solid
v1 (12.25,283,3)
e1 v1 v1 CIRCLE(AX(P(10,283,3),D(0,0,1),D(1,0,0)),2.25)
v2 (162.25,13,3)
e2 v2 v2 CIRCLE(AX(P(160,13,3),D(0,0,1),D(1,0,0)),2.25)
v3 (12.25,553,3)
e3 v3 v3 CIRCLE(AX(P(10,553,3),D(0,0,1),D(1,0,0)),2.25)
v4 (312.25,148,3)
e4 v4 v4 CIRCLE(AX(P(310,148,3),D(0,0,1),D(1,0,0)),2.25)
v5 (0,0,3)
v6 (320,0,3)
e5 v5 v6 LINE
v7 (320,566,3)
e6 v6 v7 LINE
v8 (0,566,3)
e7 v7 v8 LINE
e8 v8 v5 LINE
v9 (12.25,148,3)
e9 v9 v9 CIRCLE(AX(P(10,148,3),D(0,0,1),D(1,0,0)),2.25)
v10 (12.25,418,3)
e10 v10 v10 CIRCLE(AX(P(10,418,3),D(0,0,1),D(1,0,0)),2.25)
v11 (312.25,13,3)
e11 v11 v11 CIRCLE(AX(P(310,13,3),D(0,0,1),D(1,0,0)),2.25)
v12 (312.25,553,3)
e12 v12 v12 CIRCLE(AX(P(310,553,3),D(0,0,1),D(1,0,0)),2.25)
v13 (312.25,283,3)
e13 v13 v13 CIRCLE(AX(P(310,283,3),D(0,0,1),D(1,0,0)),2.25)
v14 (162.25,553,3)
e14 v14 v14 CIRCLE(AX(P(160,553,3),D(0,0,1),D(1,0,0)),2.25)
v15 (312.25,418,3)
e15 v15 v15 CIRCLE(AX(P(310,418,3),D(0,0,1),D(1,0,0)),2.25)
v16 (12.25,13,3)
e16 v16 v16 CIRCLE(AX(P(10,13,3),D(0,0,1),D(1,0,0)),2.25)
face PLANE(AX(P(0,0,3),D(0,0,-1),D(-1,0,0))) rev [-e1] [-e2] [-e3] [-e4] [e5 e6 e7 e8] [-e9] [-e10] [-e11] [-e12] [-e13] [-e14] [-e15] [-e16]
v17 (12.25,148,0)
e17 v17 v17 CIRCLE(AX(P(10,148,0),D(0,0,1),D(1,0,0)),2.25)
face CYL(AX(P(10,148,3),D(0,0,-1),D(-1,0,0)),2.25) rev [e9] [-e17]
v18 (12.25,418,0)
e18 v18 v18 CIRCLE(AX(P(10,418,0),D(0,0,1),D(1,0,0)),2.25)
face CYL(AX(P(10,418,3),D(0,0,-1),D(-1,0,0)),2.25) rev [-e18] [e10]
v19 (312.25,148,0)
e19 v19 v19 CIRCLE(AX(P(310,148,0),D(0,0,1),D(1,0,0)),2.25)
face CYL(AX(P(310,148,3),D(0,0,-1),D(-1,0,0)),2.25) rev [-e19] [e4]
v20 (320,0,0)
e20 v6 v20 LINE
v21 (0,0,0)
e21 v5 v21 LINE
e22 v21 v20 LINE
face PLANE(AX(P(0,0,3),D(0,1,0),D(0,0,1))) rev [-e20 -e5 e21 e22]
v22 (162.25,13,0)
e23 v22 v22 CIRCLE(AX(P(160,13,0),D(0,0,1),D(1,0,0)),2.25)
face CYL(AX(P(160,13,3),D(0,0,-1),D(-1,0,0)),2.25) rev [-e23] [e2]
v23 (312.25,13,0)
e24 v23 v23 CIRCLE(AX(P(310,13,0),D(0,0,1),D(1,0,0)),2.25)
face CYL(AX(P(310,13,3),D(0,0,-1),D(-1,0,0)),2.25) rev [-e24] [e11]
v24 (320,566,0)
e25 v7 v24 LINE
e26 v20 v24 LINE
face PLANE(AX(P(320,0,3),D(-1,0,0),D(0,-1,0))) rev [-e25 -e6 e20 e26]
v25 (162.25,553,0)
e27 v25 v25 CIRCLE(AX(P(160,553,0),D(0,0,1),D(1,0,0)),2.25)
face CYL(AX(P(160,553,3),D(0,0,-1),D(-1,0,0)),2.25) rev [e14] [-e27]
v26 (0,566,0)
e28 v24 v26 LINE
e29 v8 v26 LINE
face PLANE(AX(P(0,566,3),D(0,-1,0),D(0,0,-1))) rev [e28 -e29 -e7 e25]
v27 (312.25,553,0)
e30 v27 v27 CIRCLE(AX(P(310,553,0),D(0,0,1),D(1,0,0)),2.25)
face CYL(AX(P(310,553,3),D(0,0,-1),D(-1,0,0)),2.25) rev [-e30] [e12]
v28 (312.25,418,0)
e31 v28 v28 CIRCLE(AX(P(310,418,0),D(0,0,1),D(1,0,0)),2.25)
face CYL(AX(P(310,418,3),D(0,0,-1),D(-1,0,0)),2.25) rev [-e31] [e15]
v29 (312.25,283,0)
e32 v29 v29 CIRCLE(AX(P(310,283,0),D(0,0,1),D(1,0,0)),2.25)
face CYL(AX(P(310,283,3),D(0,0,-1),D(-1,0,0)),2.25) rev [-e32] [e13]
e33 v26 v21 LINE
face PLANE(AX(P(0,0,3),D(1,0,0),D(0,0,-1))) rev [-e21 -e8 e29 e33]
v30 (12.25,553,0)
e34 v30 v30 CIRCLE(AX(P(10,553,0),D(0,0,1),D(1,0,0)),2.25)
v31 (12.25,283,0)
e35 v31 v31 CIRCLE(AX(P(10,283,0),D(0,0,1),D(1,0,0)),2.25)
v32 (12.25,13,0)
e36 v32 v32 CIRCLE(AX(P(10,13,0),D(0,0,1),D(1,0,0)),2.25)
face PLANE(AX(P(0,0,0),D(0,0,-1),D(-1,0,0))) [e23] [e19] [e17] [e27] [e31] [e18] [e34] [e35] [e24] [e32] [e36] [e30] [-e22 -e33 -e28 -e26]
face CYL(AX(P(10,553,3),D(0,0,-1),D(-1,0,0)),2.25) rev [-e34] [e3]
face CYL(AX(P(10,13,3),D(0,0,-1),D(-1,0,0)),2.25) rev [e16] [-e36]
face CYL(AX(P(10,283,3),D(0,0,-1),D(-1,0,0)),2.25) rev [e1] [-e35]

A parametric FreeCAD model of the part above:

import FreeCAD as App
import Part
import Sketcher
from FreeCAD import Vector

doc = App.newDocument("Part")
body = doc.addObject("PartDesign::Body", "Body")

# Sketch on XY plane
sketch1 = body.newObject("Sketcher::SketchObject", "Sketch")
sketch1.AttachmentSupport = (doc.getObject("XY_Plane"), [""])
sketch1.MapMode = "FlatFace"
sketch1.addGeometry([
    Part.LineSegment(Vector(0, 566, 0), Vector(0, 0, 0)),  # 0
    Part.LineSegment(Vector(0, 0, 0), Vector(320, 0, 0)),  # 1
    Part.LineSegment(Vector(320, 0, 0), Vector(320, 566, 0)),  # 2
    Part.LineSegment(Vector(320, 566, 0), Vector(0, 566, 0)),  # 3
    Part.Circle(Vector(10, 13, 0), Vector(0, 0, 1), 2.2),  # 4
    Part.Circle(Vector(10, 148, 0), Vector(0, 0, 1), 2.2),  # 5
    Part.Circle(Vector(160, 13, 0), Vector(0, 0, 1), 2.2),  # 6
    Part.Circle(Vector(310, 13, 0), Vector(0, 0, 1), 2.2),  # 7
    Part.Circle(Vector(310, 148, 0), Vector(0, 0, 1), 2.2),  # 8
    Part.Circle(Vector(10, 283, 0), Vector(0, 0, 1), 2.2),  # 9
    Part.Circle(Vector(10, 418, 0), Vector(0, 0, 1), 2.2),  # 10
    Part.Circle(Vector(10, 553, 0), Vector(0, 0, 1), 2.2),  # 11
    Part.Circle(Vector(310, 283, 0), Vector(0, 0, 1), 2.2),  # 12
    Part.Circle(Vector(310, 418, 0), Vector(0, 0, 1), 2.2),  # 13
    Part.Circle(Vector(160, 553, 0), Vector(0, 0, 1), 2.2),  # 14
    Part.Circle(Vector(310, 553, 0), Vector(0, 0, 1), 2.2),  # 15
], False)
sketch1.addConstraint([
    Sketcher.Constraint("Coincident", 0, 2, 1, 1),
    Sketcher.Constraint("Coincident", 1, 2, 2, 1),
    Sketcher.Constraint("Coincident", 2, 2, 3, 1),
    Sketcher.Constraint("Coincident", 3, 2, 0, 1),
    Sketcher.Constraint("Vertical", 0),
    Sketcher.Constraint("Horizontal", 1),
    Sketcher.Constraint("Vertical", 2),
    Sketcher.Constraint("Horizontal", 3),
    Sketcher.Constraint("Coincident", 0, 2, -1, 1),
    Sketcher.Constraint("Equal", 4, 5),
    Sketcher.Constraint("Equal", 5, 6),
    Sketcher.Constraint("Equal", 6, 7),
    Sketcher.Constraint("Equal", 7, 8),
    Sketcher.Constraint("Equal", 8, 9),
    Sketcher.Constraint("Equal", 9, 10),
    Sketcher.Constraint("Equal", 10, 11),
    Sketcher.Constraint("Equal", 11, 12),
    Sketcher.Constraint("Equal", 12, 13),
    Sketcher.Constraint("Equal", 13, 14),
    Sketcher.Constraint("Equal", 14, 15),
    Sketcher.Constraint("Horizontal", 4, 3, 6, 3),
    Sketcher.Constraint("Horizontal", 6, 3, 7, 3),
    Sketcher.Constraint("Horizontal", 5, 3, 8, 3),
    Sketcher.Constraint("Horizontal", 9, 3, 12, 3),
    Sketcher.Constraint("Horizontal", 10, 3, 13, 3),
    Sketcher.Constraint("Horizontal", 11, 3, 14, 3),
    Sketcher.Constraint("Horizontal", 14, 3, 15, 3),
    Sketcher.Constraint("Vertical", 4, 3, 5, 3),
    Sketcher.Constraint("Vertical", 7, 3, 8, 3),
    Sketcher.Constraint("Vertical", 5, 3, 9, 3),
    Sketcher.Constraint("Vertical", 9, 3, 10, 3),
    Sketcher.Constraint("Vertical", 10, 3, 11, 3),
    Sketcher.Constraint("Vertical", 8, 3, 12, 3),
    Sketcher.Constraint("Vertical", 12, 3, 13, 3),
    Sketcher.Constraint("Vertical", 6, 3, 14, 3),
    Sketcher.Constraint("Vertical", 13, 3, 15, 3),
    Sketcher.Constraint("Diameter", 4, 4.5),
    Sketcher.Constraint("DistanceX", 1, 1, 1, 2, 320.0),
    Sketcher.Constraint("DistanceY", 0, 2, 0, 1, 566.0),
    Sketcher.Constraint("DistanceX", -1, 1, 4, 3, 10.0),
    Sketcher.Constraint("DistanceY", -1, 1, 4, 3, 13.0),
    Sketcher.Constraint("DistanceY", -1, 1, 5, 3, 148.0),
    Sketcher.Constraint("DistanceX", -1, 1, 6, 3, 160.0),
    Sketcher.Constraint("DistanceX", -1, 1, 7, 3, 310.0),
    Sketcher.Constraint("DistanceY", -1, 1, 9, 3, 283.0),
    Sketcher.Constraint("DistanceY", -1, 1, 10, 3, 418.0),
    Sketcher.Constraint("DistanceY", -1, 1, 11, 3, 553.0),
])
pad1 = body.newObject("PartDesign::Pad", "Pad")
pad1.Profile = sketch1
pad1.Length = 3

doc.recompute()
